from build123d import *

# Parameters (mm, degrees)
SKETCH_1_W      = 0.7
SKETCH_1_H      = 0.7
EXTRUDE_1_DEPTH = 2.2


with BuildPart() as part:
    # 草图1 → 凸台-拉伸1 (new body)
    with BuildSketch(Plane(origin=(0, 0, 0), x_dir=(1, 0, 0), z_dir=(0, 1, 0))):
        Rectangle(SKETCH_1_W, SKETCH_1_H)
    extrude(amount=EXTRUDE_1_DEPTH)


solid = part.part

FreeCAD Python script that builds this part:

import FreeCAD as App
import Part
import Sketcher

V = App.Vector

doc = App.newDocument("Part")
body = doc.addObject("PartDesign::Body", "Body")

sketch1 = body.newObject("Sketcher::SketchObject", "Sketch")
sketch1.AttachmentSupport = (doc.getObject("XZ_Plane"), [""])
sketch1.MapMode = "FlatFace"
sketch1.addGeometry(Part.LineSegment(V(-0.35, -0.35, 0), V(-0.35, 0.35, 0)), False)
sketch1.addGeometry(Part.LineSegment(V(-0.35, 0.35, 0), V(0.35, 0.35, 0)), False)
sketch1.addGeometry(Part.LineSegment(V(0.35, 0.35, 0), V(0.35, -0.35, 0)), False)
sketch1.addGeometry(Part.LineSegment(V(0.35, -0.35, 0), V(-0.35, -0.35, 0)), False)
sketch1.addConstraint(Sketcher.Constraint("Coincident", 0, 2, 1, 1))
sketch1.addConstraint(Sketcher.Constraint("Coincident", 1, 2, 2, 1))
sketch1.addConstraint(Sketcher.Constraint("Coincident", 2, 2, 3, 1))
sketch1.addConstraint(Sketcher.Constraint("Coincident", 3, 2, 0, 1))
sketch1.addConstraint(Sketcher.Constraint("Vertical", 0))
sketch1.addConstraint(Sketcher.Constraint("Horizontal", 1))
sketch1.addConstraint(Sketcher.Constraint("Vertical", 2))
sketch1.addConstraint(Sketcher.Constraint("Horizontal", 3))
sketch1.addConstraint(Sketcher.Constraint("Symmetric", 0, 2, 2, 2, -1, 1))
sketch1.addConstraint(Sketcher.Constraint("Equal", 3, 0))
sketch1.addConstraint(Sketcher.Constraint("DistanceX", 1, 1, 1, 2, 0.7))
pad1 = body.newObject("PartDesign::Pad", "Pad")
pad1.Profile = sketch1
pad1.Length = 2.2
pad1.Reversed = True

doc.recompute()
